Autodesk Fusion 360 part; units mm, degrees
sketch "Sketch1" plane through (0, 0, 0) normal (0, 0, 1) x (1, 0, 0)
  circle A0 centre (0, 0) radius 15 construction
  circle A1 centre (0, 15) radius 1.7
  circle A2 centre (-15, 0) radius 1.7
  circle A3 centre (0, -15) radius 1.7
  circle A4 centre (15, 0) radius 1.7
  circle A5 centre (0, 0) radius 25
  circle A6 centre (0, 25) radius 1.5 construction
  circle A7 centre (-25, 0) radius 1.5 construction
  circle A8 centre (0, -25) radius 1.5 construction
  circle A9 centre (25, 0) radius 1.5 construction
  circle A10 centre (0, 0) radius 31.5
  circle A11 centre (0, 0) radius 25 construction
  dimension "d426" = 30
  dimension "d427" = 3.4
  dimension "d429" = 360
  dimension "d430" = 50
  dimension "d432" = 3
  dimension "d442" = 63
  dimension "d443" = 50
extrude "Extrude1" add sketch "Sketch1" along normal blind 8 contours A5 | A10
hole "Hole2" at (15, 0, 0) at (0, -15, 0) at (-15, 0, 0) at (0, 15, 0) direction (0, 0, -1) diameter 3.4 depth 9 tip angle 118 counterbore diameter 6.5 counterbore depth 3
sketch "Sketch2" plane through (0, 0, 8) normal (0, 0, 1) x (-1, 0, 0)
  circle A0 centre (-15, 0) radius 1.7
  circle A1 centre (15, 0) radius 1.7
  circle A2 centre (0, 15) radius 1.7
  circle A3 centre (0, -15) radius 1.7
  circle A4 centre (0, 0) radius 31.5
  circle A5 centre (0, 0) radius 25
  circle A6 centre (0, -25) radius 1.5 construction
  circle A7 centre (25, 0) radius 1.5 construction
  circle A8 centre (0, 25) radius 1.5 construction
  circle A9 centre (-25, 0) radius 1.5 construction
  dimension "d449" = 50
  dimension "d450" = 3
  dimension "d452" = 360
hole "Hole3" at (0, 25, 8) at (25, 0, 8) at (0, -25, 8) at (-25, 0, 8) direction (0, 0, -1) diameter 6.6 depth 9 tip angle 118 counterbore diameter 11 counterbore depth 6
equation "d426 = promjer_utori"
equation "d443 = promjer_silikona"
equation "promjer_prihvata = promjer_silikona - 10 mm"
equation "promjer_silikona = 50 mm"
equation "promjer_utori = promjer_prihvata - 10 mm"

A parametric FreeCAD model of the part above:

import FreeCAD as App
import Part
import Sketcher

V = App.Vector
Q = App.Units.Quantity

doc = App.newDocument("Part")
body = doc.addObject("PartDesign::Body", "Body")

# Sketch on XY plane
sketch1 = doc.addObject("Sketcher::SketchObject", "Sketch")
body.addObject(sketch1)
sketch1.AttachmentSupport = (doc.XY_Plane, [""])
sketch1.MapMode = "FlatFace"
sketch1.addGeometry([
    Part.Circle(V(0, 0, 0), V(0, 0, 1), 31.5),  # 0
    Part.Circle(V(0, -15, 0), V(0, 0, 1), 1.7),  # 1
    Part.Circle(V(-15, 0, 0), V(0, 0, 1), 1.7),  # 2
    Part.Circle(V(15, 0, 0), V(0, 0, 1), 1.7),  # 3
    Part.Circle(V(0, 15, 0), V(0, 0, 1), 1.7),  # 4
], False)
sketch1.addConstraint([
    Sketcher.Constraint("Coincident", 0, 3, -1, 1),
    Sketcher.Constraint("Equal", 1, 2),
    Sketcher.Constraint("Equal", 2, 3),
    Sketcher.Constraint("Equal", 3, 4),
    Sketcher.Constraint("Symmetric", 2, 3, 3, 3, -1, 1),
    Sketcher.Constraint("Symmetric", 1, 3, 4, 3, -1, 1),
    Sketcher.Constraint("PointOnObject", 1, 3, -2),
    Sketcher.Constraint("PointOnObject", 2, 3, -1),
    Sketcher.Constraint("Diameter", 0, Q("63 mm")),
    Sketcher.Constraint("Diameter", 1, Q("3.4 mm")),
    Sketcher.Constraint("DistanceX", 2, 3, 3, 3, Q("30 mm")),
    Sketcher.Constraint("DistanceY", 1, 3, 4, 3, Q("30 mm")),
])
pad1 = doc.addObject("PartDesign::Pad", "Pad")
body.addObject(pad1)
pad1.Profile = sketch1
pad1.Length = 8

# Sketch on XY plane
sketch2 = doc.addObject("Sketcher::SketchObject", "Sketch001")
body.addObject(sketch2)
sketch2.AttachmentSupport = (doc.XY_Plane, [""])
sketch2.MapMode = "FlatFace"
sketch2.addGeometry([
    Part.Circle(V(15, 0, 0), V(0, 0, 1), 1.7),
    Part.Circle(V(0, -15, 0), V(0, 0, 1), 1.7),
    Part.Circle(V(-15, 0, 0), V(0, 0, 1), 1.7),
    Part.Circle(V(0, 15, 0), V(0, 0, 1), 1.7),
], False)
sketch2.addConstraint([
    Sketcher.Constraint("Equal", 0, 1),
    Sketcher.Constraint("Equal", 1, 2),
    Sketcher.Constraint("Equal", 2, 3),
    Sketcher.Constraint("Symmetric", 0, 3, 2, 3, -1, 1),
    Sketcher.Constraint("Symmetric", 1, 3, 3, 3, -1, 1),
    Sketcher.Constraint("PointOnObject", 0, 3, -1),
    Sketcher.Constraint("PointOnObject", 1, 3, -2),
    Sketcher.Constraint("Diameter", 0, Q("3.4 mm")),
    Sketcher.Constraint("DistanceX", -1, 1, 0, 3, Q("15 mm")),
    Sketcher.Constraint("DistanceY", 1, 3, -1, 1, Q("15 mm")),
])
doc.recompute()
hole = doc.addObject("PartDesign::Hole", "Hole")
body.addObject(hole)
hole.Profile = sketch2
hole.ThreadType = "None"
hole.Diameter = 3.4
hole.DepthType = "Dimension"
hole.Depth = 9
hole.DrillPoint = "Angled"
hole.DrillPointAngle = 118
hole.HoleCutType = "Counterbore"
hole.HoleCutDiameter = 6.5
hole.HoleCutDepth = 3

# Sketch on XY plane
sketch3 = doc.addObject("Sketcher::SketchObject", "Sketch002")
body.addObject(sketch3)
sketch3.AttachmentSupport = (doc.XY_Plane, [""])
sketch3.MapMode = "FlatFace"
sketch3.AttachmentOffset = App.Placement(V(0, 0, 8), App.Rotation())
sketch3.addGeometry([
    Part.Circle(V(0, 25, 0), V(0, 0, 1), 3.3),
    Part.Circle(V(25, 0, 0), V(0, 0, 1), 3.3),
    Part.Circle(V(0, -25, 0), V(0, 0, 1), 3.3),
    Part.Circle(V(-25, 0, 0), V(0, 0, 1), 3.3),
], False)
sketch3.addConstraint([
    Sketcher.Constraint("Equal", 0, 1),
    Sketcher.Constraint("Equal", 1, 2),
    Sketcher.Constraint("Equal", 2, 3),
    Sketcher.Constraint("Symmetric", 0, 3, 2, 3, -1, 1),
    Sketcher.Constraint("Symmetric", 1, 3, 3, 3, -1, 1),
    Sketcher.Constraint("PointOnObject", 0, 3, -2),
    Sketcher.Constraint("PointOnObject", 1, 3, -1),
    Sketcher.Constraint("Diameter", 0, Q("6.6 mm")),
    Sketcher.Constraint("DistanceY", -1, 1, 0, 3, Q("25 mm")),
    Sketcher.Constraint("DistanceX", -1, 1, 1, 3, Q("25 mm")),
])
doc.recompute()
hole2 = doc.addObject("PartDesign::Hole", "Hole001")
body.addObject(hole2)
hole2.Profile = sketch3
hole2.ThreadType = "None"
hole2.Diameter = 6.6
hole2.DepthType = "Dimension"
hole2.Depth = 9
hole2.DrillPoint = "Angled"
hole2.DrillPointAngle = 118
hole2.HoleCutType = "Counterbore"
hole2.HoleCutDiameter = 11
hole2.HoleCutDepth = 6

doc.recompute()
